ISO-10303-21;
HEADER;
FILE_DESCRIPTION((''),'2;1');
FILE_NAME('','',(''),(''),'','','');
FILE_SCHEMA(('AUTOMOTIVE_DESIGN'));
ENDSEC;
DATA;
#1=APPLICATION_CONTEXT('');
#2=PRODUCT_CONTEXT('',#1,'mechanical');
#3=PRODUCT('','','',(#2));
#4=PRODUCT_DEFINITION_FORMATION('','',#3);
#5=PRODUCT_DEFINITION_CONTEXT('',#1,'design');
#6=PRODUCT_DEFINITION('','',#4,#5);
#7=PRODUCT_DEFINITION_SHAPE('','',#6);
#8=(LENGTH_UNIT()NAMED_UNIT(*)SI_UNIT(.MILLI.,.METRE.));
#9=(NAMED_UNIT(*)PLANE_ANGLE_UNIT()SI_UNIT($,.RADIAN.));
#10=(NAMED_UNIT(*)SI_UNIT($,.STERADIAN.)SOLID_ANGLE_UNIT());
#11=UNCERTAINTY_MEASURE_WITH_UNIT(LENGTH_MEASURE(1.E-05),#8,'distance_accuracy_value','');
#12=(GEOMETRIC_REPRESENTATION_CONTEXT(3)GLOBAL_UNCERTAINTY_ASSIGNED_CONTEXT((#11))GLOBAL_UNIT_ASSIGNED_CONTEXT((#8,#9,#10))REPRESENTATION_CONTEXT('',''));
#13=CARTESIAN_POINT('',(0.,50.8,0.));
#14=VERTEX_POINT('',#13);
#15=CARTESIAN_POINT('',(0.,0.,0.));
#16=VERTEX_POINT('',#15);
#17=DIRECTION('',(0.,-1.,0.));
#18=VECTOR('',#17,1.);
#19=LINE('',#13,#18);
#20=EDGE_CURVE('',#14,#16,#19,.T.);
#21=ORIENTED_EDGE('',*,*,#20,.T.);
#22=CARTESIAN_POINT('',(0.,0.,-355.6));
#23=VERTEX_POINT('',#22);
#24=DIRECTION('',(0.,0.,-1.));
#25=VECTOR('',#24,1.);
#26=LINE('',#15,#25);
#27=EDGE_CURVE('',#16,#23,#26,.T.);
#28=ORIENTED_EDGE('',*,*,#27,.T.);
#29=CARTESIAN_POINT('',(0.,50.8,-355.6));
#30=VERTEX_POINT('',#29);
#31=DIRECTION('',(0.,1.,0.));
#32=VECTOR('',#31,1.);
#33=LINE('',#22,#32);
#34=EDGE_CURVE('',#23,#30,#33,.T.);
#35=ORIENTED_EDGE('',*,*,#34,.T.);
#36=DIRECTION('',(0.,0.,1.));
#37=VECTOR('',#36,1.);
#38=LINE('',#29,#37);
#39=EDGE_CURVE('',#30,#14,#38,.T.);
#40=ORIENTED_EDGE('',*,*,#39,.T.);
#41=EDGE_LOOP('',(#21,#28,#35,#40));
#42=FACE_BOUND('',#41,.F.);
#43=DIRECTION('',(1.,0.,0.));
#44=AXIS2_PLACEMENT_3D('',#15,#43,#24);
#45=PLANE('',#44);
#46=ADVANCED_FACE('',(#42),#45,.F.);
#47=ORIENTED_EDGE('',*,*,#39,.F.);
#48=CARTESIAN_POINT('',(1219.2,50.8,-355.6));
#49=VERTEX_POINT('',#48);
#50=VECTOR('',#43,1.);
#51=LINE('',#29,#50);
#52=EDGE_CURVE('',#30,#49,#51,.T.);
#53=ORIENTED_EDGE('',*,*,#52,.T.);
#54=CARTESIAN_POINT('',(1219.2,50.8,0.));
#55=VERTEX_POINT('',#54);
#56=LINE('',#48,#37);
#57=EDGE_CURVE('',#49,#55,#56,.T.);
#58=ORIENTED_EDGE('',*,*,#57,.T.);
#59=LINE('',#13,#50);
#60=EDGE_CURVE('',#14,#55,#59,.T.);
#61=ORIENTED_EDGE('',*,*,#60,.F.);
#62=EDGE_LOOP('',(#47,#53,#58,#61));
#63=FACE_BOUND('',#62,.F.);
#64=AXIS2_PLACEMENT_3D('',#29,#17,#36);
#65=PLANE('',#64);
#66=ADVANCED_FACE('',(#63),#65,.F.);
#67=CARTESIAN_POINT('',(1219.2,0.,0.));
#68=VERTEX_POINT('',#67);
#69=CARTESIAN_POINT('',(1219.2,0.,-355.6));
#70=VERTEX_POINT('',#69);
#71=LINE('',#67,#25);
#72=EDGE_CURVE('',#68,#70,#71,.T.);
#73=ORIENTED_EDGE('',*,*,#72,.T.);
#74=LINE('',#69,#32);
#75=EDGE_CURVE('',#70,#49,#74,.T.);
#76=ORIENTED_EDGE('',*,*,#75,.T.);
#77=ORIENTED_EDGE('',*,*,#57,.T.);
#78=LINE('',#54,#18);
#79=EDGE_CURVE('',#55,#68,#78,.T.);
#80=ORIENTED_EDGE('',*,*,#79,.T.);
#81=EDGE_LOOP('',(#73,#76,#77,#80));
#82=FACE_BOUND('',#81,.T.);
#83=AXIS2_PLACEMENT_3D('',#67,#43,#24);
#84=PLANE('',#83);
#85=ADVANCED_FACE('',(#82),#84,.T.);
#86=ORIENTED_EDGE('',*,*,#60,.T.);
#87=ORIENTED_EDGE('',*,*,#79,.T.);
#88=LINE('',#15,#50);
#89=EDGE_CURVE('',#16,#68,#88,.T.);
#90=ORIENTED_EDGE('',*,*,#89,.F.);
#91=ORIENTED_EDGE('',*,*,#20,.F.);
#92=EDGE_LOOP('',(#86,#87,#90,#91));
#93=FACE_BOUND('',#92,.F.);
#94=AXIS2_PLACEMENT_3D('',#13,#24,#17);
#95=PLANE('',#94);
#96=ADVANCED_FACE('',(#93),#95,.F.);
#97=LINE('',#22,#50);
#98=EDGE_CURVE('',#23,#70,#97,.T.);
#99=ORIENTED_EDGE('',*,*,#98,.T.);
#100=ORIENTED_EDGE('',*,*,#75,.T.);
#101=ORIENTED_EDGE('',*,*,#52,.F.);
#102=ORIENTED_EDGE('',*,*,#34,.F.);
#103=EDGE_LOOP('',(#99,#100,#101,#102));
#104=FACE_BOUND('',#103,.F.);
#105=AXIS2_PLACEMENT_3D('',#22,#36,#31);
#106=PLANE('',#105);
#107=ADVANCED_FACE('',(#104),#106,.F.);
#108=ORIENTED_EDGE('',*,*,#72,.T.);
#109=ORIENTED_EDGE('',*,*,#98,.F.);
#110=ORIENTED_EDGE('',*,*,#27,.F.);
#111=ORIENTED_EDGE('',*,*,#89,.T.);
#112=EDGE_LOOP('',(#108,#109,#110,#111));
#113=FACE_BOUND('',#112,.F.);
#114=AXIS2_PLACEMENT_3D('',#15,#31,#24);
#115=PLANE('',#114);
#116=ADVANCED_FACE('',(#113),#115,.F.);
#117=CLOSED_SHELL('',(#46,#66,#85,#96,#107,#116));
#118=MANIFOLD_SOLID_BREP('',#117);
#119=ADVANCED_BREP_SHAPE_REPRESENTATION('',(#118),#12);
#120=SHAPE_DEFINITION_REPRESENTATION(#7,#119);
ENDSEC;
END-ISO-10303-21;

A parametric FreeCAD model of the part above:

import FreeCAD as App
import Part
import Sketcher

V = App.Vector
Q = App.Units.Quantity


def add_polygon(sketch, points):
    """Adds a closed chain of lines whose ends are joined by coincident constraints."""
    first, n = sketch.GeometryCount, len(points)
    for a, b in zip(points, points[1:] + points[:1]):
        sketch.addGeometry(Part.LineSegment(App.Vector(*a, 0), App.Vector(*b, 0)), False)
    for i in range(n):
        sketch.addConstraint(Sketcher.Constraint("Coincident", first + i, 2, first + (i + 1) % n, 1))

doc = App.newDocument("Part")
params = doc.addObject("Spreadsheet::Sheet", "Params")
for row, (alias, value) in enumerate([
    ("sketch1_width", "2 in"),
    ("sketch1_height", "14 in"),
    ("pad1_length", "48 in"),
], start=1):
    params.set(f"A{row}", alias)
    params.set(f"B{row}", "=" + value)
    params.setAlias(f"B{row}", alias)

body = doc.addObject("PartDesign::Body", "Body")

sketch1 = doc.addObject("Sketcher::SketchObject", "Sketch")
body.addObject(sketch1)
sketch1.AttachmentSupport = (doc.YZ_Plane, [""])
sketch1.MapMode = "FlatFace"
add_polygon(sketch1, [(50.8, 0), (0, 0), (0, -355.6), (50.8, -355.6)])
sketch1.addConstraint(Sketcher.Constraint("Horizontal", 0))
sketch1.addConstraint(Sketcher.Constraint("Vertical", 1))
sketch1.addConstraint(Sketcher.Constraint("Horizontal", 2))
sketch1.addConstraint(Sketcher.Constraint("Vertical", 3))
sketch1.addConstraint(Sketcher.Constraint("Coincident", 0, 2, -1, 1))
sketch1.addConstraint(Sketcher.Constraint("DistanceX", 0, 2, 0, 1, Q("2 in")))
sketch1.addConstraint(Sketcher.Constraint("DistanceY", 1, 2, 1, 1, Q("14 in")))
sketch1.setExpression("Constraints[9]", "Params.sketch1_width")
sketch1.setExpression("Constraints[10]", "Params.sketch1_height")
pad1 = doc.addObject("PartDesign::Pad", "Pad")
body.addObject(pad1)
pad1.Profile = sketch1
pad1.setExpression("Length", "Params.pad1_length")

doc.recompute()
